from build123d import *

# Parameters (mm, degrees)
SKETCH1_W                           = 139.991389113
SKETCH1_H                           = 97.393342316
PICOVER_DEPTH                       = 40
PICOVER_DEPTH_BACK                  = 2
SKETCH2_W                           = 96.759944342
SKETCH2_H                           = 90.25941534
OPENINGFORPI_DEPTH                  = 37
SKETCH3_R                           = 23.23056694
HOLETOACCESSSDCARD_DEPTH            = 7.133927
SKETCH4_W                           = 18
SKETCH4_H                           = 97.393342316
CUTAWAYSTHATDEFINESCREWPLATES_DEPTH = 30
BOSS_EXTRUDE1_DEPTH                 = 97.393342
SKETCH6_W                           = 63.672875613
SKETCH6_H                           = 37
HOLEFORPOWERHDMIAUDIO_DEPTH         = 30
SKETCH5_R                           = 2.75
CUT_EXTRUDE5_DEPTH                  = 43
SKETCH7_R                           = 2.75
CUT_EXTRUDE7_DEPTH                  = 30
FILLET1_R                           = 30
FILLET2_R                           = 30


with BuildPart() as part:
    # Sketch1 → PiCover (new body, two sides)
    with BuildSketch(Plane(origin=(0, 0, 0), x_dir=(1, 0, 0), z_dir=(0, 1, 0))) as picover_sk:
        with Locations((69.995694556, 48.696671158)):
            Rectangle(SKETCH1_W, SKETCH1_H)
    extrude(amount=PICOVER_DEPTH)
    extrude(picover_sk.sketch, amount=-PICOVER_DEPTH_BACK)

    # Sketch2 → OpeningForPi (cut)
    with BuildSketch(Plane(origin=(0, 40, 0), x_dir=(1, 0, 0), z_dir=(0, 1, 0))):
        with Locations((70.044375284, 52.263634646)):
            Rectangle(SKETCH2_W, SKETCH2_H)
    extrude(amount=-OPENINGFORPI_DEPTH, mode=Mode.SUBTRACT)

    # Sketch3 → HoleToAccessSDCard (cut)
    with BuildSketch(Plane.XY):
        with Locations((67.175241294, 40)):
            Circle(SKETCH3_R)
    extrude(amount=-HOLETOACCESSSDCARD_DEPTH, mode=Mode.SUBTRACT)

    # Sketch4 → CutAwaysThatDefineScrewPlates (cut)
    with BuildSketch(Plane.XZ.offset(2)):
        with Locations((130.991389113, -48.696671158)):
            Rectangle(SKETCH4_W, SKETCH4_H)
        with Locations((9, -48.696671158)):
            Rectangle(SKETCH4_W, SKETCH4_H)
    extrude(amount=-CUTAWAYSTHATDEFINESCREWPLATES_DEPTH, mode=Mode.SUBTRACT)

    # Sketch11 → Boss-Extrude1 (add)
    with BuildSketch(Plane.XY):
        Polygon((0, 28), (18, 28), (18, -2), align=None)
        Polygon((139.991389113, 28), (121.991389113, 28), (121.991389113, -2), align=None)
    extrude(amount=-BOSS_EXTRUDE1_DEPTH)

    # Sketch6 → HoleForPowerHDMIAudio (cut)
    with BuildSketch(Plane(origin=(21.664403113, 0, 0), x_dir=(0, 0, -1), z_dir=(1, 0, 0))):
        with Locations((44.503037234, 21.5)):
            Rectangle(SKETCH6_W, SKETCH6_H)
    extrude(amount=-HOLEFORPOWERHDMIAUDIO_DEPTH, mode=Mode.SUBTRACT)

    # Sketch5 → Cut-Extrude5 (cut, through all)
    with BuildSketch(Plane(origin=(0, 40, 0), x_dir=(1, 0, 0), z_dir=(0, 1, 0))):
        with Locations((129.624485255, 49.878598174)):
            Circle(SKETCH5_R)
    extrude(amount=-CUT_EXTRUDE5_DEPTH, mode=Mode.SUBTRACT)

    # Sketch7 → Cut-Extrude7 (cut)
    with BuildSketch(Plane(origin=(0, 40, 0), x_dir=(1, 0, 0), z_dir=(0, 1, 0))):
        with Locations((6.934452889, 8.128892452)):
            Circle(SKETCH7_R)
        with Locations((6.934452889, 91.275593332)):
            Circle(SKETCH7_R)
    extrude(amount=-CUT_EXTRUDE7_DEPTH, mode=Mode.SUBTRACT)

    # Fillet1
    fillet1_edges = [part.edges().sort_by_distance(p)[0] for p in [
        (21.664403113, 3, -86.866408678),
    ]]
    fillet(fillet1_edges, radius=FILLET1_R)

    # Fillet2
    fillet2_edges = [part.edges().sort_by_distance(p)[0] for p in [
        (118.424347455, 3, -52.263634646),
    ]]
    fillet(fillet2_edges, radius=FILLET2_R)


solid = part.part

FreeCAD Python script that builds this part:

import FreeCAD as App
import Part
import Sketcher
from FreeCAD import Vector
Q = App.Units.Quantity


def edges_at(feature, points):
    """Names of the edges that pass closest to the given points."""
    edges = feature.Shape.Edges
    near = lambda p: min(range(len(edges)), key=lambda i: edges[i].distToShape(Part.Vertex(*p))[0])
    return sorted({f"Edge{near(p) + 1}" for p in points})

doc = App.newDocument("Part")
params = doc.addObject("Spreadsheet::Sheet", "Params")
for row, (alias, value) in enumerate([
    ("pad1_length", "40 mm"),
    ("pad1_length2", "2 mm"),
    ("pocket1_length", "37 mm"),
    ("pocket2_length", "7.133927 mm"),
    ("sketch4_width", "18 mm"),
    ("pocket3_length", "30 mm"),
    ("sketch5_width", "18 mm"),
    ("sketch5_height", "30 mm"),
    ("pad2_length", "97.393342 mm"),
    ("sketch6_width", "37 mm"),
    ("pocket4_length", "30 mm"),
    ("sketch7_diameter", "5.5 mm"),
    ("sketch8_diameter", "5.5 mm"),
    ("pocket6_length", "30 mm"),
    ("fillet_radius", "30 mm"),
    ("fillet2_radius", "30 mm"),
], start=1):
    params.set(f"A{row}", alias)
    params.set(f"B{row}", "=" + value)
    params.setAlias(f"B{row}", alias)

body = doc.addObject("PartDesign::Body", "Body")

# Sketch on XZ plane
sketch1 = body.newObject("Sketcher::SketchObject", "Sketch")
sketch1.AttachmentSupport = (doc.getObject("XZ_Plane"), [""])
sketch1.MapMode = "FlatFace"
sketch1.addGeometry(Part.LineSegment(Vector(0, -97, 0), Vector(0, 0, 0)), False)
sketch1.addGeometry(Part.LineSegment(Vector(0, 0, 0), Vector(140, 0, 0)), False)
sketch1.addGeometry(Part.LineSegment(Vector(140, 0, 0), Vector(140, -97, 0)), False)
sketch1.addGeometry(Part.LineSegment(Vector(140, -97, 0), Vector(0, -97, 0)), False)
sketch1.addConstraint(Sketcher.Constraint("Coincident", 0, 2, 1, 1))
sketch1.addConstraint(Sketcher.Constraint("Coincident", 1, 2, 2, 1))
sketch1.addConstraint(Sketcher.Constraint("Coincident", 2, 2, 3, 1))
sketch1.addConstraint(Sketcher.Constraint("Coincident", 3, 2, 0, 1))
sketch1.addConstraint(Sketcher.Constraint("Vertical", 0))
sketch1.addConstraint(Sketcher.Constraint("Horizontal", 1))
sketch1.addConstraint(Sketcher.Constraint("Vertical", 2))
sketch1.addConstraint(Sketcher.Constraint("Horizontal", 3))
sketch1.addConstraint(Sketcher.Constraint("Coincident", 0, 2, -1, 1))
sketch1.addConstraint(Sketcher.Constraint("DistanceX", 1, 1, 1, 2, Q("139.991389 mm")))
sketch1.addConstraint(Sketcher.Constraint("DistanceY", 0, 1, 0, 2, Q("97.393342 mm")))
pad1 = body.newObject("PartDesign::Pad", "Pad")
pad1.Profile = sketch1
pad1.Type = "TwoLengths"
pad1.setExpression("Length", "Params.pad1_length")
pad1.setExpression("Length2", "Params.pad1_length2")
pad1.Reversed = True

# Sketch on XZ plane
sketch2 = body.newObject("Sketcher::SketchObject", "Sketch001")
sketch2.AttachmentSupport = (doc.getObject("XZ_Plane"), [""])
sketch2.MapMode = "FlatFace"
sketch2.AttachmentOffset = App.Placement(Vector(0, 0, -40), App.Rotation())
sketch2.addGeometry(Part.LineSegment(Vector(22, -97, 0), Vector(22, -7, 0)), False)
sketch2.addGeometry(Part.LineSegment(Vector(22, -7, 0), Vector(118, -7, 0)), False)
sketch2.addGeometry(Part.LineSegment(Vector(118, -7, 0), Vector(118, -97, 0)), False)
sketch2.addGeometry(Part.LineSegment(Vector(118, -97, 0), Vector(22, -97, 0)), False)
sketch2.addConstraint(Sketcher.Constraint("Coincident", 0, 2, 1, 1))
sketch2.addConstraint(Sketcher.Constraint("Coincident", 1, 2, 2, 1))
sketch2.addConstraint(Sketcher.Constraint("Coincident", 2, 2, 3, 1))
sketch2.addConstraint(Sketcher.Constraint("Coincident", 3, 2, 0, 1))
sketch2.addConstraint(Sketcher.Constraint("Vertical", 0))
sketch2.addConstraint(Sketcher.Constraint("Horizontal", 1))
sketch2.addConstraint(Sketcher.Constraint("Vertical", 2))
sketch2.addConstraint(Sketcher.Constraint("Horizontal", 3))
sketch2.addConstraint(Sketcher.Constraint("DistanceX", 1, 1, 1, 2, Q("96.759944 mm")))
sketch2.addConstraint(Sketcher.Constraint("DistanceY", 0, 1, 0, 2, Q("90.259415 mm")))
sketch2.addConstraint(Sketcher.Constraint("DistanceX", -1, 1, 0, 2, Q("21.664403 mm")))
sketch2.addConstraint(Sketcher.Constraint("DistanceY", 0, 2, -1, 1, Q("7.133927 mm")))
pocket1 = body.newObject("PartDesign::Pocket", "Pocket")
pocket1.Profile = sketch2
pocket1.setExpression("Length", "Params.pocket1_length")
pocket1.Reversed = True

# Sketch on XY plane
sketch3 = body.newObject("Sketcher::SketchObject", "Sketch002")
sketch3.AttachmentSupport = (doc.getObject("XY_Plane"), [""])
sketch3.MapMode = "FlatFace"
sketch3.addGeometry(Part.Circle(Vector(67, 40, 0), Vector(0, 0, 1), 23), False)
sketch3.addConstraint(Sketcher.Constraint("DistanceY", -1, 1, 0, 3, Q("40 mm")))
sketch3.addConstraint(Sketcher.Constraint("Diameter", 0, Q("46.461134 mm")))
sketch3.addConstraint(Sketcher.Constraint("DistanceX", -1, 1, 0, 3, Q("67.175241 mm")))
pocket2 = body.newObject("PartDesign::Pocket", "Pocket001")
pocket2.Profile = sketch3
pocket2.setExpression("Length", "Params.pocket2_length")

# Sketch on XZ plane
sketch4 = body.newObject("Sketcher::SketchObject", "Sketch003")
sketch4.AttachmentSupport = (doc.getObject("XZ_Plane"), [""])
sketch4.MapMode = "FlatFace"
sketch4.AttachmentOffset = App.Placement(Vector(0, 0, 2), App.Rotation())
sketch4.addGeometry(Part.LineSegment(Vector(122, 0, 0), Vector(122, -97, 0)), False)
sketch4.addGeometry(Part.LineSegment(Vector(122, -97, 0), Vector(140, -97, 0)), False)
sketch4.addGeometry(Part.LineSegment(Vector(140, -97, 0), Vector(140, 0, 0)), False)
sketch4.addGeometry(Part.LineSegment(Vector(140, 0, 0), Vector(122, 0, 0)), False)
sketch4.addGeometry(Part.LineSegment(Vector(0, 0, 0), Vector(0, -97, 0)), False)
sketch4.addGeometry(Part.LineSegment(Vector(0, -97, 0), Vector(18, -97, 0)), False)
sketch4.addGeometry(Part.LineSegment(Vector(18, -97, 0), Vector(18, 0, 0)), False)
sketch4.addGeometry(Part.LineSegment(Vector(18, 0, 0), Vector(0, 0, 0)), False)
sketch4.addConstraint(Sketcher.Constraint("Coincident", 0, 2, 1, 1))
sketch4.addConstraint(Sketcher.Constraint("Coincident", 1, 2, 2, 1))
sketch4.addConstraint(Sketcher.Constraint("Coincident", 2, 2, 3, 1))
sketch4.addConstraint(Sketcher.Constraint("Coincident", 3, 2, 0, 1))
sketch4.addConstraint(Sketcher.Constraint("Coincident", 4, 2, 5, 1))
sketch4.addConstraint(Sketcher.Constraint("Coincident", 5, 2, 6, 1))
sketch4.addConstraint(Sketcher.Constraint("Coincident", 6, 2, 7, 1))
sketch4.addConstraint(Sketcher.Constraint("Coincident", 7, 2, 4, 1))
sketch4.addConstraint(Sketcher.Constraint("Vertical", 0))
sketch4.addConstraint(Sketcher.Constraint("Horizontal", 1))
sketch4.addConstraint(Sketcher.Constraint("Vertical", 2))
sketch4.addConstraint(Sketcher.Constraint("Horizontal", 3))
sketch4.addConstraint(Sketcher.Constraint("Vertical", 4))
sketch4.addConstraint(Sketcher.Constraint("Horizontal", 5))
sketch4.addConstraint(Sketcher.Constraint("Vertical", 6))
sketch4.addConstraint(Sketcher.Constraint("Horizontal", 7))
sketch4.addConstraint(Sketcher.Constraint("Coincident", 7, 2, -1, 1))
sketch4.addConstraint(Sketcher.Constraint("PointOnObject", 2, 2, -1))
sketch4.addConstraint(Sketcher.Constraint("Horizontal", 1, 2, 4, 2))
sketch4.addConstraint(Sketcher.Constraint("Equal", 3, 5))
sketch4.addConstraint(Sketcher.Constraint("DistanceX", 1, 1, 1, 2, Q("18 mm")))
sketch4.addConstraint(Sketcher.Constraint("DistanceY", 0, 2, 0, 1, Q("97.393342 mm")))
sketch4.addConstraint(Sketcher.Constraint("DistanceX", -1, 1, 0, 2, Q("121.991389 mm")))
sketch4.setExpression("Constraints[20]", "Params.sketch4_width")
pocket3 = body.newObject("PartDesign::Pocket", "Pocket002")
pocket3.Profile = sketch4
pocket3.setExpression("Length", "Params.pocket3_length")

# Sketch on XY plane
sketch5 = body.newObject("Sketcher::SketchObject", "Sketch004")
sketch5.AttachmentSupport = (doc.getObject("XY_Plane"), [""])
sketch5.MapMode = "FlatFace"
sketch5.addGeometry(Part.LineSegment(Vector(18, 28, 0), Vector(0, 28, 0)), False)
sketch5.addGeometry(Part.LineSegment(Vector(0, 28, 0), Vector(18, -2, 0)), False)
sketch5.addGeometry(Part.LineSegment(Vector(18, -2, 0), Vector(18, 28, 0)), False)
sketch5.addGeometry(Part.LineSegment(Vector(140, 28, 0), Vector(122, 28, 0)), False)
sketch5.addGeometry(Part.LineSegment(Vector(122, 28, 0), Vector(122, -2, 0)), False)
sketch5.addGeometry(Part.LineSegment(Vector(122, -2, 0), Vector(140, 28, 0)), False)
sketch5.addConstraint(Sketcher.Constraint("Coincident", 0, 2, 1, 1))
sketch5.addConstraint(Sketcher.Constraint("Coincident", 1, 2, 2, 1))
sketch5.addConstraint(Sketcher.Constraint("Coincident", 2, 2, 0, 1))
sketch5.addConstraint(Sketcher.Constraint("Coincident", 3, 2, 4, 1))
sketch5.addConstraint(Sketcher.Constraint("Coincident", 4, 2, 5, 1))
sketch5.addConstraint(Sketcher.Constraint("Coincident", 5, 2, 3, 1))
sketch5.addConstraint(Sketcher.Constraint("Horizontal", 0))
sketch5.addConstraint(Sketcher.Constraint("Vertical", 2))
sketch5.addConstraint(Sketcher.Constraint("Horizontal", 3))
sketch5.addConstraint(Sketcher.Constraint("Vertical", 4))
sketch5.addConstraint(Sketcher.Constraint("PointOnObject", 0, 2, -2))
sketch5.addConstraint(Sketcher.Constraint("Horizontal", 2, 2, 3, 2))
sketch5.addConstraint(Sketcher.Constraint("Horizontal", 1, 2, 4, 2))
sketch5.addConstraint(Sketcher.Constraint("Equal", 0, 3))
sketch5.addConstraint(Sketcher.Constraint("DistanceX", 0, 2, 0, 1, Q("18 mm")))
sketch5.addConstraint(Sketcher.Constraint("DistanceY", 2, 1, 2, 2, Q("30 mm")))
sketch5.addConstraint(Sketcher.Constraint("DistanceY", -1, 1, 0, 2, Q("28 mm")))
sketch5.addConstraint(Sketcher.Constraint("DistanceX", -1, 1, 3, 2, Q("121.991389 mm")))
sketch5.setExpression("Constraints[14]", "Params.sketch5_width")
sketch5.setExpression("Constraints[15]", "Params.sketch5_height")
pad2 = body.newObject("PartDesign::Pad", "Pad001")
pad2.Profile = sketch5
pad2.setExpression("Length", "Params.pad2_length")
pad2.Reversed = True

# Sketch on YZ plane
sketch6 = body.newObject("Sketcher::SketchObject", "Sketch005")
sketch6.AttachmentSupport = (doc.getObject("YZ_Plane"), [""])
sketch6.MapMode = "FlatFace"
sketch6.AttachmentOffset = App.Placement(Vector(0, 0, 21.664403), App.Rotation())
sketch6.addGeometry(Part.LineSegment(Vector(40, -13, 0), Vector(3, -13, 0)), False)
sketch6.addGeometry(Part.LineSegment(Vector(3, -13, 0), Vector(3, -76, 0)), False)
sketch6.addGeometry(Part.LineSegment(Vector(3, -76, 0), Vector(40, -76, 0)), False)
sketch6.addGeometry(Part.LineSegment(Vector(40, -76, 0), Vector(40, -13, 0)), False)
sketch6.addConstraint(Sketcher.Constraint("Coincident", 0, 2, 1, 1))
sketch6.addConstraint(Sketcher.Constraint("Coincident", 1, 2, 2, 1))
sketch6.addConstraint(Sketcher.Constraint("Coincident", 2, 2, 3, 1))
sketch6.addConstraint(Sketcher.Constraint("Coincident", 3, 2, 0, 1))
sketch6.addConstraint(Sketcher.Constraint("Horizontal", 0))
sketch6.addConstraint(Sketcher.Constraint("Vertical", 1))
sketch6.addConstraint(Sketcher.Constraint("Horizontal", 2))
sketch6.addConstraint(Sketcher.Constraint("Vertical", 3))
sketch6.addConstraint(Sketcher.Constraint("DistanceX", 0, 2, 0, 1, Q("37 mm")))
sketch6.addConstraint(Sketcher.Constraint("DistanceX", -1, 1, 0, 2, Q("3 mm")))
sketch6.addConstraint(Sketcher.Constraint("DistanceY", 0, 2, -1, 1, Q("12.666599 mm")))
sketch6.addConstraint(Sketcher.Constraint("DistanceY", 1, 2, 1, 1, Q("63.672876 mm")))
sketch6.setExpression("Constraints[8]", "Params.sketch6_width")
pocket4 = body.newObject("PartDesign::Pocket", "Pocket003")
pocket4.Profile = sketch6
pocket4.setExpression("Length", "Params.pocket4_length")

# Sketch on XZ plane
sketch7 = body.newObject("Sketcher::SketchObject", "Sketch006")
sketch7.AttachmentSupport = (doc.getObject("XZ_Plane"), [""])
sketch7.MapMode = "FlatFace"
sketch7.AttachmentOffset = App.Placement(Vector(0, 0, -40), App.Rotation())
sketch7.addGeometry(Part.Circle(Vector(129.6, -49.9, 0), Vector(0, 0, 1), 2.8), False)
sketch7.addConstraint(Sketcher.Constraint("Diameter", 0, Q("5.5 mm")))
sketch7.addConstraint(Sketcher.Constraint("DistanceY", 0, 3, -1, 1, Q("49.878598 mm")))
sketch7.addConstraint(Sketcher.Constraint("DistanceX", -1, 1, 0, 3, Q("129.624485 mm")))
sketch7.setExpression("Constraints[0]", "Params.sketch7_diameter")
pocket5 = body.newObject("PartDesign::Pocket", "Pocket004")
pocket5.Profile = sketch7
pocket5.Type = "ThroughAll"
pocket5.Reversed = True

# Sketch on XZ plane
sketch8 = body.newObject("Sketcher::SketchObject", "Sketch007")
sketch8.AttachmentSupport = (doc.getObject("XZ_Plane"), [""])
sketch8.MapMode = "FlatFace"
sketch8.AttachmentOffset = App.Placement(Vector(0, 0, -40), App.Rotation())
sketch8.addGeometry(Part.Circle(Vector(6.9, -8.1, 0), Vector(0, 0, 1), 2.8), False)
sketch8.addGeometry(Part.Circle(Vector(6.9, -91.3, 0), Vector(0, 0, 1), 2.8), False)
sketch8.addConstraint(Sketcher.Constraint("Equal", 0, 1))
sketch8.addConstraint(Sketcher.Constraint("Vertical", 0, 3, 1, 3))
sketch8.addConstraint(Sketcher.Constraint("Diameter", 0, Q("5.5 mm")))
sketch8.addConstraint(Sketcher.Constraint("DistanceY", 1, 3, 0, 3, Q("83.146701 mm")))
sketch8.addConstraint(Sketcher.Constraint("DistanceX", -1, 1, 0, 3, Q("6.934453 mm")))
sketch8.addConstraint(Sketcher.Constraint("DistanceY", 0, 3, -1, 1, Q("8.128892 mm")))
sketch8.setExpression("Constraints[2]", "Params.sketch8_diameter")
pocket6 = body.newObject("PartDesign::Pocket", "Pocket005")
pocket6.Profile = sketch8
pocket6.setExpression("Length", "Params.pocket6_length")
pocket6.Reversed = True
doc.recompute()

fillet = body.newObject("PartDesign::Fillet", "Fillet")
fillet.Base = (pocket6, edges_at(pocket6, [(21.664, 3, -86.866)]))
fillet.setExpression("Radius", "Params.fillet_radius")
doc.recompute()

fillet2 = body.newObject("PartDesign::Fillet", "Fillet001")
fillet2.Base = (fillet, edges_at(fillet, [(118.424, 3, -52.264)]))
fillet2.setExpression("Radius", "Params.fillet2_radius")

doc.recompute()
